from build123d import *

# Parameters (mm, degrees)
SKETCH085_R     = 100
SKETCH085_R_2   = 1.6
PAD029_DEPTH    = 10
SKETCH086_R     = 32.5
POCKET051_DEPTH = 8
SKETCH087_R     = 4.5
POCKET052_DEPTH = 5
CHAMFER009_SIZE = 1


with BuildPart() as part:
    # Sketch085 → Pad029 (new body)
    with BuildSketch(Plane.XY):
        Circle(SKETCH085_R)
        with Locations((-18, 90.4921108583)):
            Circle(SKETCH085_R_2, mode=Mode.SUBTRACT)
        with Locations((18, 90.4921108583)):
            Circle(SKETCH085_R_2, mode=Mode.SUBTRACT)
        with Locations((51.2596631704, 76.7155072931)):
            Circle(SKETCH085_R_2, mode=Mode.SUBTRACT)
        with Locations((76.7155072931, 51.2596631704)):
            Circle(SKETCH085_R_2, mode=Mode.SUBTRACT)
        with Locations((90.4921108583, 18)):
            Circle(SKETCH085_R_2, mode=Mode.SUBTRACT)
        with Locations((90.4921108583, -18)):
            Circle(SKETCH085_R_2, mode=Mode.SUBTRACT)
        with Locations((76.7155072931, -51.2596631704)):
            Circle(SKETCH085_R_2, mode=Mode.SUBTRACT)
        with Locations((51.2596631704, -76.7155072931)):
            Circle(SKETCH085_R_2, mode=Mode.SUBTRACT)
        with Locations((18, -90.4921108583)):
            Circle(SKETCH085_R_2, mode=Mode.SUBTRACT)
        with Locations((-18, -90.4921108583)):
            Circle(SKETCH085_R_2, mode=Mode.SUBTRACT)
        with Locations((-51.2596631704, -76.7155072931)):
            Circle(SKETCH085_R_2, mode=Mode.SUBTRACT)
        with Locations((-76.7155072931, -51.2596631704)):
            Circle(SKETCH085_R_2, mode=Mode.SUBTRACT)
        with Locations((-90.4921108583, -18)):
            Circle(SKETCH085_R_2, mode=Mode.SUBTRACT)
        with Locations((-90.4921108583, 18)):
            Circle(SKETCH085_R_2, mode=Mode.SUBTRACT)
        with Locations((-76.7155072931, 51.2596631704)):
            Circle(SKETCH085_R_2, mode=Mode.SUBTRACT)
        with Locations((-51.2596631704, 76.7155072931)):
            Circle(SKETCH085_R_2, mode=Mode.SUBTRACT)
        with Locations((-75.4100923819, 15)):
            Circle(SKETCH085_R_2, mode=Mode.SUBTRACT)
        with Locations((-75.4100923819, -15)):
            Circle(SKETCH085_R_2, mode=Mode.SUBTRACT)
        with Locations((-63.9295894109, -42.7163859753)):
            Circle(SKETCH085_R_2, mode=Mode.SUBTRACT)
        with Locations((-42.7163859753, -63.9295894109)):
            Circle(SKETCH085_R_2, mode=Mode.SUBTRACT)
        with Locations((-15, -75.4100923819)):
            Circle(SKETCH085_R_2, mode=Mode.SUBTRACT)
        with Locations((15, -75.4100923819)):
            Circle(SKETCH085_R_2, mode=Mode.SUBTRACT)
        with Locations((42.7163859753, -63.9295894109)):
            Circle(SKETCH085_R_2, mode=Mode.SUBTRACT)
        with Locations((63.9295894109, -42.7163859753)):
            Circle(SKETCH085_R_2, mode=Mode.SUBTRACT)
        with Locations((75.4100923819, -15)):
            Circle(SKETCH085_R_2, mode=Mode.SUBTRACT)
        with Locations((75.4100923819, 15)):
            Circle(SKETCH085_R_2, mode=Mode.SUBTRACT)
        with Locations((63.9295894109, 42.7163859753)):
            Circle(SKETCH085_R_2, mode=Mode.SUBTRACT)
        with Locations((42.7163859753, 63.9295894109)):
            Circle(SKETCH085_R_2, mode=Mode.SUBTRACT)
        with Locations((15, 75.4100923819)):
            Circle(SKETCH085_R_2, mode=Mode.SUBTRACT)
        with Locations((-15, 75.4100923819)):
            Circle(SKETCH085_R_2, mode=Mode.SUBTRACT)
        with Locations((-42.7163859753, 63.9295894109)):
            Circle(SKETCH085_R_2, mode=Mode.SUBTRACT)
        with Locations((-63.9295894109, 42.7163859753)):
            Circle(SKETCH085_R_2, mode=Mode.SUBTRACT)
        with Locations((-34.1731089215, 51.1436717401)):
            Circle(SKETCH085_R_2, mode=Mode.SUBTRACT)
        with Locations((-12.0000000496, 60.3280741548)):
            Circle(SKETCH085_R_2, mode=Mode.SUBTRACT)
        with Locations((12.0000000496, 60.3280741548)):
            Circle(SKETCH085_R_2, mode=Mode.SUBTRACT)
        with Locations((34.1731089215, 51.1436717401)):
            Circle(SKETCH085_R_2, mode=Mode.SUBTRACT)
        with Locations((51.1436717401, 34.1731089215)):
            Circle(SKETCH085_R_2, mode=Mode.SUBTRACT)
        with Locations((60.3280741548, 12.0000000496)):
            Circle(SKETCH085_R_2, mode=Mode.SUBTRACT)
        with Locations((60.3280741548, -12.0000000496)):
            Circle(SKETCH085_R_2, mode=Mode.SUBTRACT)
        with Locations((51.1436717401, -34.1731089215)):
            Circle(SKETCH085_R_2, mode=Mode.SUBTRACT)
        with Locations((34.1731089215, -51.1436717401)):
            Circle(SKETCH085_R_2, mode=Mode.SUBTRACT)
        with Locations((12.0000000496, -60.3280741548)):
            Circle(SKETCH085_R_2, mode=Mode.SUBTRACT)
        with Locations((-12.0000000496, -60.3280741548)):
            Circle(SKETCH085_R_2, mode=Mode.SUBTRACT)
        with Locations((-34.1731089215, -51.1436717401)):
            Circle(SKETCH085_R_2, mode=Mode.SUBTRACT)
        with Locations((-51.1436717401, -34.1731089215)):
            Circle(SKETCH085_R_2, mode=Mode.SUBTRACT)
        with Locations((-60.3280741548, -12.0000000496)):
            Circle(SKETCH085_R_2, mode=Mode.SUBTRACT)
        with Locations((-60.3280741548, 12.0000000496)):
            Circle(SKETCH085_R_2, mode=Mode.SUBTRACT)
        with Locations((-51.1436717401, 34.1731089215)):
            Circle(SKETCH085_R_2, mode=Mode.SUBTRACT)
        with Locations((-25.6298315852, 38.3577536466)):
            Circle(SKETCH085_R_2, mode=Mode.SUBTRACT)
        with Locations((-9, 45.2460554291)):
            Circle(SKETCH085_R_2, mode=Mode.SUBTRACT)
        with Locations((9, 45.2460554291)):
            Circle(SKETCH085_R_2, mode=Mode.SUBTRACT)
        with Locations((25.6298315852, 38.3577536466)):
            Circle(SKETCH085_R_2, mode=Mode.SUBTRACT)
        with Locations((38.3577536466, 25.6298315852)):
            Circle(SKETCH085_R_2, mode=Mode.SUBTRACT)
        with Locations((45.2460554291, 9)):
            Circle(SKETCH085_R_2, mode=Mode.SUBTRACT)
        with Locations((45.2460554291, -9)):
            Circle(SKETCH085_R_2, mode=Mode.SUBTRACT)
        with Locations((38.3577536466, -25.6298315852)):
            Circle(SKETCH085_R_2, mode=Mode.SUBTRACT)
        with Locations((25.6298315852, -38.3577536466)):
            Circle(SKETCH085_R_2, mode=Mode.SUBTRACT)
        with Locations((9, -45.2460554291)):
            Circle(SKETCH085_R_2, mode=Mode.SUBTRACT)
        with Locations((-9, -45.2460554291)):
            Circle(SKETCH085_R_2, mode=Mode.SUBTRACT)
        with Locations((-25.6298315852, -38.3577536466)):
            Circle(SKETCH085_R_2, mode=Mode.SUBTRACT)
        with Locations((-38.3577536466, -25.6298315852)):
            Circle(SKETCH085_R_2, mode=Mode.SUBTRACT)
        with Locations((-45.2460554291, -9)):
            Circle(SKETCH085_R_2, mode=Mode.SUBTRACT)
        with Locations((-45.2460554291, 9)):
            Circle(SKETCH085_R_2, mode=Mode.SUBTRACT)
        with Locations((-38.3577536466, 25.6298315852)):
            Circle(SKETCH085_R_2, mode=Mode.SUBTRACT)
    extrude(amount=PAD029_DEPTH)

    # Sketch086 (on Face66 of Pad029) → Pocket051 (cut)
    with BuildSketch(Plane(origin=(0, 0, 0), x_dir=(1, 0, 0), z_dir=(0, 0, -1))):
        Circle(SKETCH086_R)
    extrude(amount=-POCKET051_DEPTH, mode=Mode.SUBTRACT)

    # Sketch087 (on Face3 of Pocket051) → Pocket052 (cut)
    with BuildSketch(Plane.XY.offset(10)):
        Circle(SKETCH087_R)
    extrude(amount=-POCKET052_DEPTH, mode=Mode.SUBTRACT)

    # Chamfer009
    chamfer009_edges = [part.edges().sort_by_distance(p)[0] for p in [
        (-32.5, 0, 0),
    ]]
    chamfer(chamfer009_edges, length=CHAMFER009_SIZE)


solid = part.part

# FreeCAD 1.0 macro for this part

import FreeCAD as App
import Part
import Sketcher
from FreeCAD import Vector


def edges_at(feature, points):
    """Names of the edges that pass closest to the given points."""
    edges = feature.Shape.Edges
    near = lambda p: min(range(len(edges)), key=lambda i: edges[i].distToShape(Part.Vertex(*p))[0])
    return sorted({f"Edge{near(p) + 1}" for p in points})

doc = App.newDocument("Part")
params = doc.addObject("Spreadsheet::Sheet", "Params")
for row, (alias, value) in enumerate([
    ("sketch1_diameter", "200 mm"),
    ("sketch1_diameter2", "3.2 mm"),
    ("pad1_length", "10 mm"),
    ("sketch2_diameter", "65 mm"),
    ("pocket1_length", "8 mm"),
    ("sketch3_diameter", "9 mm"),
    ("pocket2_length", "5 mm"),
    ("chamfer_size", "1 mm"),
], start=1):
    params.set(f"A{row}", alias)
    params.set(f"B{row}", "=" + value)
    params.setAlias(f"B{row}", alias)

body = doc.addObject("PartDesign::Body", "Body")

sketch1 = doc.addObject("Sketcher::SketchObject", "Sketch")
body.addObject(sketch1)
sketch1.AttachmentSupport = (doc.XY_Plane, [""])
sketch1.MapMode = "FlatFace"
sketch1.addGeometry([
    Part.Circle(Vector(0, 0, 0), Vector(0, 0, 1), 100),
    Part.Circle(Vector(-51.3, -76.7, 0), Vector(0, 0, 1), 1.6),
    Part.Circle(Vector(-76.7, -51.3, 0), Vector(0, 0, 1), 1.6),
    Part.Circle(Vector(-18, -90.5, 0), Vector(0, 0, 1), 1.6),
    Part.Circle(Vector(-15, -75.4, 0), Vector(0, 0, 1), 1.6),
    Part.Circle(Vector(-42.7, -63.9, 0), Vector(0, 0, 1), 1.6),
    Part.Circle(Vector(-34.2, -51.1, 0), Vector(0, 0, 1), 1.6),
    Part.Circle(Vector(-12, -60.3, 0), Vector(0, 0, 1), 1.6),
    Part.Circle(Vector(-63.9, -42.7, 0), Vector(0, 0, 1), 1.6),
    Part.Circle(Vector(-51.1, -34.2, 0), Vector(0, 0, 1), 1.6),
    Part.Circle(Vector(-90.5, -18, 0), Vector(0, 0, 1), 1.6),
    Part.Circle(Vector(-75.4, -15, 0), Vector(0, 0, 1), 1.6),
    Part.Circle(Vector(-60.3, -12, 0), Vector(0, 0, 1), 1.6),
    Part.Circle(Vector(-25.6, -38.4, 0), Vector(0, 0, 1), 1.6),
    Part.Circle(Vector(-38.4, -25.6, 0), Vector(0, 0, 1), 1.6),
    Part.Circle(Vector(-9, -45.2, 0), Vector(0, 0, 1), 1.6),
    Part.Circle(Vector(-45.2, -9, 0), Vector(0, 0, 1), 1.6),
    Part.Circle(Vector(18, -90.5, 0), Vector(0, 0, 1), 1.6),
    Part.Circle(Vector(15, -75.4, 0), Vector(0, 0, 1), 1.6),
    Part.Circle(Vector(12, -60.3, 0), Vector(0, 0, 1), 1.6),
    Part.Circle(Vector(42.7, -63.9, 0), Vector(0, 0, 1), 1.6),
    Part.Circle(Vector(34.2, -51.1, 0), Vector(0, 0, 1), 1.6),
    Part.Circle(Vector(51.3, -76.7, 0), Vector(0, 0, 1), 1.6),
    Part.Circle(Vector(76.7, -51.3, 0), Vector(0, 0, 1), 1.6),
    Part.Circle(Vector(9, -45.2, 0), Vector(0, 0, 1), 1.6),
    Part.Circle(Vector(25.6, -38.4, 0), Vector(0, 0, 1), 1.6),
    Part.Circle(Vector(38.4, -25.6, 0), Vector(0, 0, 1), 1.6),
    Part.Circle(Vector(45.2, -9, 0), Vector(0, 0, 1), 1.6),
    Part.Circle(Vector(63.9, -42.7, 0), Vector(0, 0, 1), 1.6),
    Part.Circle(Vector(51.1, -34.2, 0), Vector(0, 0, 1), 1.6),
    Part.Circle(Vector(60.3, -12, 0), Vector(0, 0, 1), 1.6),
    Part.Circle(Vector(75.4, -15, 0), Vector(0, 0, 1), 1.6),
    Part.Circle(Vector(90.5, -18, 0), Vector(0, 0, 1), 1.6),
    Part.Circle(Vector(-90.5, 18, 0), Vector(0, 0, 1), 1.6),
    Part.Circle(Vector(-75.4, 15, 0), Vector(0, 0, 1), 1.6),
    Part.Circle(Vector(-60.3, 12, 0), Vector(0, 0, 1), 1.6),
    Part.Circle(Vector(-51.1, 34.2, 0), Vector(0, 0, 1), 1.6),
    Part.Circle(Vector(-63.9, 42.7, 0), Vector(0, 0, 1), 1.6),
    Part.Circle(Vector(-45.2, 9, 0), Vector(0, 0, 1), 1.6),
    Part.Circle(Vector(-38.4, 25.6, 0), Vector(0, 0, 1), 1.6),
    Part.Circle(Vector(-25.6, 38.4, 0), Vector(0, 0, 1), 1.6),
    Part.Circle(Vector(-9, 45.2, 0), Vector(0, 0, 1), 1.6),
    Part.Circle(Vector(-76.7, 51.3, 0), Vector(0, 0, 1), 1.6),
    Part.Circle(Vector(-51.3, 76.7, 0), Vector(0, 0, 1), 1.6),
    Part.Circle(Vector(-34.2, 51.1, 0), Vector(0, 0, 1), 1.6),
    Part.Circle(Vector(-42.7, 63.9, 0), Vector(0, 0, 1), 1.6),
    Part.Circle(Vector(-12, 60.3, 0), Vector(0, 0, 1), 1.6),
    Part.Circle(Vector(-15, 75.4, 0), Vector(0, 0, 1), 1.6),
    Part.Circle(Vector(-18, 90.5, 0), Vector(0, 0, 1), 1.6),
    Part.Circle(Vector(45.2, 9, 0), Vector(0, 0, 1), 1.6),
    Part.Circle(Vector(9, 45.2, 0), Vector(0, 0, 1), 1.6),
    Part.Circle(Vector(38.4, 25.6, 0), Vector(0, 0, 1), 1.6),
    Part.Circle(Vector(25.6, 38.4, 0), Vector(0, 0, 1), 1.6),
    Part.Circle(Vector(60.3, 12, 0), Vector(0, 0, 1), 1.6),
    Part.Circle(Vector(75.4, 15, 0), Vector(0, 0, 1), 1.6),
    Part.Circle(Vector(90.5, 18, 0), Vector(0, 0, 1), 1.6),
    Part.Circle(Vector(51.1, 34.2, 0), Vector(0, 0, 1), 1.6),
    Part.Circle(Vector(63.9, 42.7, 0), Vector(0, 0, 1), 1.6),
    Part.Circle(Vector(12, 60.3, 0), Vector(0, 0, 1), 1.6),
    Part.Circle(Vector(34.2, 51.1, 0), Vector(0, 0, 1), 1.6),
    Part.Circle(Vector(42.7, 63.9, 0), Vector(0, 0, 1), 1.6),
    Part.Circle(Vector(15, 75.4, 0), Vector(0, 0, 1), 1.6),
    Part.Circle(Vector(18, 90.5, 0), Vector(0, 0, 1), 1.6),
    Part.Circle(Vector(76.7, 51.3, 0), Vector(0, 0, 1), 1.6),
    Part.Circle(Vector(51.3, 76.7, 0), Vector(0, 0, 1), 1.6),
], False)
sketch1.addConstraint([
    Sketcher.Constraint("Coincident", 0, 3, -1, 1),
    Sketcher.Constraint("Equal", 1, 2),
    Sketcher.Constraint("Equal", 2, 3),
    Sketcher.Constraint("Equal", 3, 4),
    Sketcher.Constraint("Equal", 4, 5),
    Sketcher.Constraint("Equal", 5, 6),
    Sketcher.Constraint("Equal", 6, 7),
    Sketcher.Constraint("Equal", 7, 8),
    Sketcher.Constraint("Equal", 8, 9),
    Sketcher.Constraint("Equal", 9, 10),
    Sketcher.Constraint("Equal", 10, 11),
    Sketcher.Constraint("Equal", 11, 12),
    Sketcher.Constraint("Equal", 12, 13),
    Sketcher.Constraint("Equal", 13, 14),
    Sketcher.Constraint("Equal", 14, 15),
    Sketcher.Constraint("Equal", 15, 16),
    Sketcher.Constraint("Equal", 16, 17),
    Sketcher.Constraint("Equal", 17, 18),
    Sketcher.Constraint("Equal", 18, 19),
    Sketcher.Constraint("Equal", 19, 20),
    Sketcher.Constraint("Equal", 20, 21),
    Sketcher.Constraint("Equal", 21, 22),
    Sketcher.Constraint("Equal", 22, 23),
    Sketcher.Constraint("Equal", 23, 24),
    Sketcher.Constraint("Equal", 24, 25),
    Sketcher.Constraint("Equal", 25, 26),
    Sketcher.Constraint("Equal", 26, 27),
    Sketcher.Constraint("Equal", 27, 28),
    Sketcher.Constraint("Equal", 28, 29),
    Sketcher.Constraint("Equal", 29, 30),
    Sketcher.Constraint("Equal", 30, 31),
    Sketcher.Constraint("Equal", 31, 32),
    Sketcher.Constraint("Equal", 32, 33),
    Sketcher.Constraint("Equal", 33, 34),
    Sketcher.Constraint("Equal", 34, 35),
    Sketcher.Constraint("Equal", 35, 36),
    Sketcher.Constraint("Equal", 36, 37),
    Sketcher.Constraint("Equal", 37, 38),
    Sketcher.Constraint("Equal", 38, 39),
    Sketcher.Constraint("Equal", 39, 40),
    Sketcher.Constraint("Equal", 40, 41),
    Sketcher.Constraint("Equal", 41, 42),
    Sketcher.Constraint("Equal", 42, 43),
    Sketcher.Constraint("Equal", 43, 44),
    Sketcher.Constraint("Equal", 44, 45),
    Sketcher.Constraint("Equal", 45, 46),
    Sketcher.Constraint("Equal", 46, 47),
    Sketcher.Constraint("Equal", 47, 48),
    Sketcher.Constraint("Equal", 48, 49),
    Sketcher.Constraint("Equal", 49, 50),
    Sketcher.Constraint("Equal", 50, 51),
    Sketcher.Constraint("Equal", 51, 52),
    Sketcher.Constraint("Equal", 52, 53),
    Sketcher.Constraint("Equal", 53, 54),
    Sketcher.Constraint("Equal", 54, 55),
    Sketcher.Constraint("Equal", 55, 56),
    Sketcher.Constraint("Equal", 56, 57),
    Sketcher.Constraint("Equal", 57, 58),
    Sketcher.Constraint("Equal", 58, 59),
    Sketcher.Constraint("Equal", 59, 60),
    Sketcher.Constraint("Equal", 60, 61),
    Sketcher.Constraint("Equal", 61, 62),
    Sketcher.Constraint("Equal", 62, 63),
    Sketcher.Constraint("Equal", 63, 64),
    Sketcher.Constraint("Symmetric", 32, 3, 33, 3, -1, 1),
    Sketcher.Constraint("Symmetric", 31, 3, 34, 3, -1, 1),
    Sketcher.Constraint("Symmetric", 30, 3, 35, 3, -1, 1),
    Sketcher.Constraint("Symmetric", 29, 3, 36, 3, -1, 1),
    Sketcher.Constraint("Symmetric", 28, 3, 37, 3, -1, 1),
    Sketcher.Constraint("Symmetric", 27, 3, 38, 3, -1, 1),
    Sketcher.Constraint("Symmetric", 26, 3, 39, 3, -1, 1),
    Sketcher.Constraint("Symmetric", 25, 3, 40, 3, -1, 1),
    Sketcher.Constraint("Symmetric", 24, 3, 41, 3, -1, 1),
    Sketcher.Constraint("Symmetric", 23, 3, 42, 3, -1, 1),
    Sketcher.Constraint("Symmetric", 22, 3, 43, 3, -1, 1),
    Sketcher.Constraint("Symmetric", 21, 3, 44, 3, -1, 1),
    Sketcher.Constraint("Symmetric", 20, 3, 45, 3, -1, 1),
    Sketcher.Constraint("Symmetric", 19, 3, 46, 3, -1, 1),
    Sketcher.Constraint("Symmetric", 18, 3, 47, 3, -1, 1),
    Sketcher.Constraint("Symmetric", 17, 3, 48, 3, -1, 1),
    Sketcher.Constraint("Symmetric", 16, 3, 49, 3, -1, 1),
    Sketcher.Constraint("Symmetric", 15, 3, 50, 3, -1, 1),
    Sketcher.Constraint("Symmetric", 14, 3, 51, 3, -1, 1),
    Sketcher.Constraint("Symmetric", 13, 3, 52, 3, -1, 1),
    Sketcher.Constraint("Symmetric", 12, 3, 53, 3, -1, 1),
    Sketcher.Constraint("Symmetric", 11, 3, 54, 3, -1, 1),
    Sketcher.Constraint("Symmetric", 10, 3, 55, 3, -1, 1),
    Sketcher.Constraint("Symmetric", 9, 3, 56, 3, -1, 1),
    Sketcher.Constraint("Symmetric", 8, 3, 57, 3, -1, 1),
    Sketcher.Constraint("Symmetric", 7, 3, 58, 3, -1, 1),
    Sketcher.Constraint("Symmetric", 6, 3, 59, 3, -1, 1),
    Sketcher.Constraint("Symmetric", 5, 3, 60, 3, -1, 1),
    Sketcher.Constraint("Symmetric", 4, 3, 61, 3, -1, 1),
    Sketcher.Constraint("Symmetric", 3, 3, 62, 3, -1, 1),
    Sketcher.Constraint("Symmetric", 2, 3, 63, 3, -1, 1),
    Sketcher.Constraint("Symmetric", 1, 3, 64, 3, -1, 1),
    Sketcher.Constraint("Symmetric", 3, 3, 17, 3, -2),
    Sketcher.Constraint("Symmetric", 4, 3, 18, 3, -2),
    Sketcher.Constraint("Symmetric", 7, 3, 19, 3, -2),
    Sketcher.Constraint("Symmetric", 5, 3, 20, 3, -2),
    Sketcher.Constraint("Symmetric", 6, 3, 21, 3, -2),
    Sketcher.Constraint("Symmetric", 1, 3, 22, 3, -2),
    Sketcher.Constraint("Symmetric", 2, 3, 23, 3, -2),
    Sketcher.Constraint("Symmetric", 15, 3, 24, 3, -2),
    Sketcher.Constraint("Symmetric", 13, 3, 25, 3, -2),
    Sketcher.Constraint("Symmetric", 14, 3, 26, 3, -2),
    Sketcher.Constraint("Symmetric", 16, 3, 27, 3, -2),
    Sketcher.Constraint("Symmetric", 8, 3, 28, 3, -2),
    Sketcher.Constraint("Symmetric", 9, 3, 29, 3, -2),
    Sketcher.Constraint("Symmetric", 12, 3, 30, 3, -2),
    Sketcher.Constraint("Symmetric", 11, 3, 31, 3, -2),
    Sketcher.Constraint("Symmetric", 10, 3, 32, 3, -2),
    Sketcher.Constraint("Diameter", 0, 200.0),
    Sketcher.Constraint("Diameter", 1, 3.2),
    Sketcher.Constraint("DistanceX", 3, 3, -1, 1, 18.0),
    Sketcher.Constraint("DistanceX", 4, 3, -1, 1, 15.0),
    Sketcher.Constraint("DistanceX", 7, 3, -1, 1, 12.0),
    Sketcher.Constraint("DistanceY", 10, 3, -1, 1, 18.0),
    Sketcher.Constraint("DistanceY", 11, 3, -1, 1, 15.0),
    Sketcher.Constraint("DistanceY", 12, 3, -1, 1, 12.0),
    Sketcher.Constraint("DistanceX", 15, 3, -1, 1, 9.0),
    Sketcher.Constraint("DistanceY", 16, 3, -1, 1, 9.0),
    Sketcher.Constraint("DistanceY", 3, 3, -1, 1, 90.492111),
    Sketcher.Constraint("DistanceY", 5, 3, -1, 1, 63.929589),
    Sketcher.Constraint("DistanceX", 6, 3, -1, 1, 34.173109),
    Sketcher.Constraint("DistanceY", 6, 3, -1, 1, 51.143672),
    Sketcher.Constraint("DistanceX", 8, 3, -1, 1, 63.929589),
    Sketcher.Constraint("DistanceX", 9, 3, -1, 1, 51.143672),
    Sketcher.Constraint("DistanceY", 9, 3, -1, 1, 34.173109),
    Sketcher.Constraint("DistanceX", 10, 3, -1, 1, 90.492111),
    Sketcher.Constraint("DistanceX", 13, 3, -1, 1, 25.629832),
    Sketcher.Constraint("DistanceY", 14, 3, -1, 1, 25.629832),
    Sketcher.Constraint("DistanceX", 1, 3, -1, 1, 51.259663),
    Sketcher.Constraint("DistanceY", 1, 3, -1, 1, 76.715507),
    Sketcher.Constraint("DistanceX", 2, 3, -1, 1, 76.715507),
    Sketcher.Constraint("DistanceY", 2, 3, -1, 1, 51.259663),
    Sketcher.Constraint("DistanceY", 4, 3, -1, 1, 75.410092),
    Sketcher.Constraint("DistanceX", 5, 3, -1, 1, 42.716386),
    Sketcher.Constraint("DistanceY", 7, 3, -1, 1, 60.328074),
    Sketcher.Constraint("DistanceY", 8, 3, -1, 1, 42.716386),
    Sketcher.Constraint("DistanceX", 11, 3, -1, 1, 75.410092),
    Sketcher.Constraint("DistanceX", 12, 3, -1, 1, 60.328074),
    Sketcher.Constraint("DistanceY", 13, 3, -1, 1, 38.357754),
    Sketcher.Constraint("DistanceX", 14, 3, -1, 1, 38.357754),
    Sketcher.Constraint("DistanceY", 15, 3, -1, 1, 45.246055),
    Sketcher.Constraint("DistanceX", 16, 3, -1, 1, 45.246055),
])
sketch1.setExpression("Constraints[112]", "Params.sketch1_diameter")
sketch1.setExpression("Constraints[113]", "Params.sketch1_diameter2")
pad1 = doc.addObject("PartDesign::Pad", "Pad")
body.addObject(pad1)
pad1.Profile = sketch1
pad1.setExpression("Length", "Params.pad1_length")

sketch2 = doc.addObject("Sketcher::SketchObject", "Sketch001")
body.addObject(sketch2)
sketch2.AttachmentSupport = (doc.XY_Plane, [""])
sketch2.MapMode = "FlatFace"
sketch2.addGeometry(Part.Circle(Vector(0, 0, 0), Vector(0, 0, 1), 32), False)
sketch2.addConstraint([
    Sketcher.Constraint("Coincident", 0, 3, -1, 1),
    Sketcher.Constraint("Diameter", 0, 65.0),
])
sketch2.setExpression("Constraints[1]", "Params.sketch2_diameter")
pocket1 = doc.addObject("PartDesign::Pocket", "Pocket")
body.addObject(pocket1)
pocket1.Profile = sketch2
pocket1.setExpression("Length", "Params.pocket1_length")
pocket1.Reversed = True

sketch3 = doc.addObject("Sketcher::SketchObject", "Sketch002")
body.addObject(sketch3)
sketch3.AttachmentSupport = (doc.XY_Plane, [""])
sketch3.MapMode = "FlatFace"
sketch3.AttachmentOffset = App.Placement(Vector(0, 0, 10), App.Rotation())
sketch3.addGeometry(Part.Circle(Vector(0, 0, 0), Vector(0, 0, 1), 4.5), False)
sketch3.addConstraint([
    Sketcher.Constraint("Coincident", 0, 3, -1, 1),
    Sketcher.Constraint("Diameter", 0, 9.0),
])
sketch3.setExpression("Constraints[1]", "Params.sketch3_diameter")
pocket2 = doc.addObject("PartDesign::Pocket", "Pocket001")
body.addObject(pocket2)
pocket2.Profile = sketch3
pocket2.setExpression("Length", "Params.pocket2_length")
doc.recompute()

chamfer = doc.addObject("PartDesign::Chamfer", "Chamfer")
body.addObject(chamfer)
chamfer.Base = (pocket2, edges_at(pocket2, [(-32.5, 0, 0)]))
chamfer.setExpression("Size", "Params.chamfer_size")

doc.recompute()
